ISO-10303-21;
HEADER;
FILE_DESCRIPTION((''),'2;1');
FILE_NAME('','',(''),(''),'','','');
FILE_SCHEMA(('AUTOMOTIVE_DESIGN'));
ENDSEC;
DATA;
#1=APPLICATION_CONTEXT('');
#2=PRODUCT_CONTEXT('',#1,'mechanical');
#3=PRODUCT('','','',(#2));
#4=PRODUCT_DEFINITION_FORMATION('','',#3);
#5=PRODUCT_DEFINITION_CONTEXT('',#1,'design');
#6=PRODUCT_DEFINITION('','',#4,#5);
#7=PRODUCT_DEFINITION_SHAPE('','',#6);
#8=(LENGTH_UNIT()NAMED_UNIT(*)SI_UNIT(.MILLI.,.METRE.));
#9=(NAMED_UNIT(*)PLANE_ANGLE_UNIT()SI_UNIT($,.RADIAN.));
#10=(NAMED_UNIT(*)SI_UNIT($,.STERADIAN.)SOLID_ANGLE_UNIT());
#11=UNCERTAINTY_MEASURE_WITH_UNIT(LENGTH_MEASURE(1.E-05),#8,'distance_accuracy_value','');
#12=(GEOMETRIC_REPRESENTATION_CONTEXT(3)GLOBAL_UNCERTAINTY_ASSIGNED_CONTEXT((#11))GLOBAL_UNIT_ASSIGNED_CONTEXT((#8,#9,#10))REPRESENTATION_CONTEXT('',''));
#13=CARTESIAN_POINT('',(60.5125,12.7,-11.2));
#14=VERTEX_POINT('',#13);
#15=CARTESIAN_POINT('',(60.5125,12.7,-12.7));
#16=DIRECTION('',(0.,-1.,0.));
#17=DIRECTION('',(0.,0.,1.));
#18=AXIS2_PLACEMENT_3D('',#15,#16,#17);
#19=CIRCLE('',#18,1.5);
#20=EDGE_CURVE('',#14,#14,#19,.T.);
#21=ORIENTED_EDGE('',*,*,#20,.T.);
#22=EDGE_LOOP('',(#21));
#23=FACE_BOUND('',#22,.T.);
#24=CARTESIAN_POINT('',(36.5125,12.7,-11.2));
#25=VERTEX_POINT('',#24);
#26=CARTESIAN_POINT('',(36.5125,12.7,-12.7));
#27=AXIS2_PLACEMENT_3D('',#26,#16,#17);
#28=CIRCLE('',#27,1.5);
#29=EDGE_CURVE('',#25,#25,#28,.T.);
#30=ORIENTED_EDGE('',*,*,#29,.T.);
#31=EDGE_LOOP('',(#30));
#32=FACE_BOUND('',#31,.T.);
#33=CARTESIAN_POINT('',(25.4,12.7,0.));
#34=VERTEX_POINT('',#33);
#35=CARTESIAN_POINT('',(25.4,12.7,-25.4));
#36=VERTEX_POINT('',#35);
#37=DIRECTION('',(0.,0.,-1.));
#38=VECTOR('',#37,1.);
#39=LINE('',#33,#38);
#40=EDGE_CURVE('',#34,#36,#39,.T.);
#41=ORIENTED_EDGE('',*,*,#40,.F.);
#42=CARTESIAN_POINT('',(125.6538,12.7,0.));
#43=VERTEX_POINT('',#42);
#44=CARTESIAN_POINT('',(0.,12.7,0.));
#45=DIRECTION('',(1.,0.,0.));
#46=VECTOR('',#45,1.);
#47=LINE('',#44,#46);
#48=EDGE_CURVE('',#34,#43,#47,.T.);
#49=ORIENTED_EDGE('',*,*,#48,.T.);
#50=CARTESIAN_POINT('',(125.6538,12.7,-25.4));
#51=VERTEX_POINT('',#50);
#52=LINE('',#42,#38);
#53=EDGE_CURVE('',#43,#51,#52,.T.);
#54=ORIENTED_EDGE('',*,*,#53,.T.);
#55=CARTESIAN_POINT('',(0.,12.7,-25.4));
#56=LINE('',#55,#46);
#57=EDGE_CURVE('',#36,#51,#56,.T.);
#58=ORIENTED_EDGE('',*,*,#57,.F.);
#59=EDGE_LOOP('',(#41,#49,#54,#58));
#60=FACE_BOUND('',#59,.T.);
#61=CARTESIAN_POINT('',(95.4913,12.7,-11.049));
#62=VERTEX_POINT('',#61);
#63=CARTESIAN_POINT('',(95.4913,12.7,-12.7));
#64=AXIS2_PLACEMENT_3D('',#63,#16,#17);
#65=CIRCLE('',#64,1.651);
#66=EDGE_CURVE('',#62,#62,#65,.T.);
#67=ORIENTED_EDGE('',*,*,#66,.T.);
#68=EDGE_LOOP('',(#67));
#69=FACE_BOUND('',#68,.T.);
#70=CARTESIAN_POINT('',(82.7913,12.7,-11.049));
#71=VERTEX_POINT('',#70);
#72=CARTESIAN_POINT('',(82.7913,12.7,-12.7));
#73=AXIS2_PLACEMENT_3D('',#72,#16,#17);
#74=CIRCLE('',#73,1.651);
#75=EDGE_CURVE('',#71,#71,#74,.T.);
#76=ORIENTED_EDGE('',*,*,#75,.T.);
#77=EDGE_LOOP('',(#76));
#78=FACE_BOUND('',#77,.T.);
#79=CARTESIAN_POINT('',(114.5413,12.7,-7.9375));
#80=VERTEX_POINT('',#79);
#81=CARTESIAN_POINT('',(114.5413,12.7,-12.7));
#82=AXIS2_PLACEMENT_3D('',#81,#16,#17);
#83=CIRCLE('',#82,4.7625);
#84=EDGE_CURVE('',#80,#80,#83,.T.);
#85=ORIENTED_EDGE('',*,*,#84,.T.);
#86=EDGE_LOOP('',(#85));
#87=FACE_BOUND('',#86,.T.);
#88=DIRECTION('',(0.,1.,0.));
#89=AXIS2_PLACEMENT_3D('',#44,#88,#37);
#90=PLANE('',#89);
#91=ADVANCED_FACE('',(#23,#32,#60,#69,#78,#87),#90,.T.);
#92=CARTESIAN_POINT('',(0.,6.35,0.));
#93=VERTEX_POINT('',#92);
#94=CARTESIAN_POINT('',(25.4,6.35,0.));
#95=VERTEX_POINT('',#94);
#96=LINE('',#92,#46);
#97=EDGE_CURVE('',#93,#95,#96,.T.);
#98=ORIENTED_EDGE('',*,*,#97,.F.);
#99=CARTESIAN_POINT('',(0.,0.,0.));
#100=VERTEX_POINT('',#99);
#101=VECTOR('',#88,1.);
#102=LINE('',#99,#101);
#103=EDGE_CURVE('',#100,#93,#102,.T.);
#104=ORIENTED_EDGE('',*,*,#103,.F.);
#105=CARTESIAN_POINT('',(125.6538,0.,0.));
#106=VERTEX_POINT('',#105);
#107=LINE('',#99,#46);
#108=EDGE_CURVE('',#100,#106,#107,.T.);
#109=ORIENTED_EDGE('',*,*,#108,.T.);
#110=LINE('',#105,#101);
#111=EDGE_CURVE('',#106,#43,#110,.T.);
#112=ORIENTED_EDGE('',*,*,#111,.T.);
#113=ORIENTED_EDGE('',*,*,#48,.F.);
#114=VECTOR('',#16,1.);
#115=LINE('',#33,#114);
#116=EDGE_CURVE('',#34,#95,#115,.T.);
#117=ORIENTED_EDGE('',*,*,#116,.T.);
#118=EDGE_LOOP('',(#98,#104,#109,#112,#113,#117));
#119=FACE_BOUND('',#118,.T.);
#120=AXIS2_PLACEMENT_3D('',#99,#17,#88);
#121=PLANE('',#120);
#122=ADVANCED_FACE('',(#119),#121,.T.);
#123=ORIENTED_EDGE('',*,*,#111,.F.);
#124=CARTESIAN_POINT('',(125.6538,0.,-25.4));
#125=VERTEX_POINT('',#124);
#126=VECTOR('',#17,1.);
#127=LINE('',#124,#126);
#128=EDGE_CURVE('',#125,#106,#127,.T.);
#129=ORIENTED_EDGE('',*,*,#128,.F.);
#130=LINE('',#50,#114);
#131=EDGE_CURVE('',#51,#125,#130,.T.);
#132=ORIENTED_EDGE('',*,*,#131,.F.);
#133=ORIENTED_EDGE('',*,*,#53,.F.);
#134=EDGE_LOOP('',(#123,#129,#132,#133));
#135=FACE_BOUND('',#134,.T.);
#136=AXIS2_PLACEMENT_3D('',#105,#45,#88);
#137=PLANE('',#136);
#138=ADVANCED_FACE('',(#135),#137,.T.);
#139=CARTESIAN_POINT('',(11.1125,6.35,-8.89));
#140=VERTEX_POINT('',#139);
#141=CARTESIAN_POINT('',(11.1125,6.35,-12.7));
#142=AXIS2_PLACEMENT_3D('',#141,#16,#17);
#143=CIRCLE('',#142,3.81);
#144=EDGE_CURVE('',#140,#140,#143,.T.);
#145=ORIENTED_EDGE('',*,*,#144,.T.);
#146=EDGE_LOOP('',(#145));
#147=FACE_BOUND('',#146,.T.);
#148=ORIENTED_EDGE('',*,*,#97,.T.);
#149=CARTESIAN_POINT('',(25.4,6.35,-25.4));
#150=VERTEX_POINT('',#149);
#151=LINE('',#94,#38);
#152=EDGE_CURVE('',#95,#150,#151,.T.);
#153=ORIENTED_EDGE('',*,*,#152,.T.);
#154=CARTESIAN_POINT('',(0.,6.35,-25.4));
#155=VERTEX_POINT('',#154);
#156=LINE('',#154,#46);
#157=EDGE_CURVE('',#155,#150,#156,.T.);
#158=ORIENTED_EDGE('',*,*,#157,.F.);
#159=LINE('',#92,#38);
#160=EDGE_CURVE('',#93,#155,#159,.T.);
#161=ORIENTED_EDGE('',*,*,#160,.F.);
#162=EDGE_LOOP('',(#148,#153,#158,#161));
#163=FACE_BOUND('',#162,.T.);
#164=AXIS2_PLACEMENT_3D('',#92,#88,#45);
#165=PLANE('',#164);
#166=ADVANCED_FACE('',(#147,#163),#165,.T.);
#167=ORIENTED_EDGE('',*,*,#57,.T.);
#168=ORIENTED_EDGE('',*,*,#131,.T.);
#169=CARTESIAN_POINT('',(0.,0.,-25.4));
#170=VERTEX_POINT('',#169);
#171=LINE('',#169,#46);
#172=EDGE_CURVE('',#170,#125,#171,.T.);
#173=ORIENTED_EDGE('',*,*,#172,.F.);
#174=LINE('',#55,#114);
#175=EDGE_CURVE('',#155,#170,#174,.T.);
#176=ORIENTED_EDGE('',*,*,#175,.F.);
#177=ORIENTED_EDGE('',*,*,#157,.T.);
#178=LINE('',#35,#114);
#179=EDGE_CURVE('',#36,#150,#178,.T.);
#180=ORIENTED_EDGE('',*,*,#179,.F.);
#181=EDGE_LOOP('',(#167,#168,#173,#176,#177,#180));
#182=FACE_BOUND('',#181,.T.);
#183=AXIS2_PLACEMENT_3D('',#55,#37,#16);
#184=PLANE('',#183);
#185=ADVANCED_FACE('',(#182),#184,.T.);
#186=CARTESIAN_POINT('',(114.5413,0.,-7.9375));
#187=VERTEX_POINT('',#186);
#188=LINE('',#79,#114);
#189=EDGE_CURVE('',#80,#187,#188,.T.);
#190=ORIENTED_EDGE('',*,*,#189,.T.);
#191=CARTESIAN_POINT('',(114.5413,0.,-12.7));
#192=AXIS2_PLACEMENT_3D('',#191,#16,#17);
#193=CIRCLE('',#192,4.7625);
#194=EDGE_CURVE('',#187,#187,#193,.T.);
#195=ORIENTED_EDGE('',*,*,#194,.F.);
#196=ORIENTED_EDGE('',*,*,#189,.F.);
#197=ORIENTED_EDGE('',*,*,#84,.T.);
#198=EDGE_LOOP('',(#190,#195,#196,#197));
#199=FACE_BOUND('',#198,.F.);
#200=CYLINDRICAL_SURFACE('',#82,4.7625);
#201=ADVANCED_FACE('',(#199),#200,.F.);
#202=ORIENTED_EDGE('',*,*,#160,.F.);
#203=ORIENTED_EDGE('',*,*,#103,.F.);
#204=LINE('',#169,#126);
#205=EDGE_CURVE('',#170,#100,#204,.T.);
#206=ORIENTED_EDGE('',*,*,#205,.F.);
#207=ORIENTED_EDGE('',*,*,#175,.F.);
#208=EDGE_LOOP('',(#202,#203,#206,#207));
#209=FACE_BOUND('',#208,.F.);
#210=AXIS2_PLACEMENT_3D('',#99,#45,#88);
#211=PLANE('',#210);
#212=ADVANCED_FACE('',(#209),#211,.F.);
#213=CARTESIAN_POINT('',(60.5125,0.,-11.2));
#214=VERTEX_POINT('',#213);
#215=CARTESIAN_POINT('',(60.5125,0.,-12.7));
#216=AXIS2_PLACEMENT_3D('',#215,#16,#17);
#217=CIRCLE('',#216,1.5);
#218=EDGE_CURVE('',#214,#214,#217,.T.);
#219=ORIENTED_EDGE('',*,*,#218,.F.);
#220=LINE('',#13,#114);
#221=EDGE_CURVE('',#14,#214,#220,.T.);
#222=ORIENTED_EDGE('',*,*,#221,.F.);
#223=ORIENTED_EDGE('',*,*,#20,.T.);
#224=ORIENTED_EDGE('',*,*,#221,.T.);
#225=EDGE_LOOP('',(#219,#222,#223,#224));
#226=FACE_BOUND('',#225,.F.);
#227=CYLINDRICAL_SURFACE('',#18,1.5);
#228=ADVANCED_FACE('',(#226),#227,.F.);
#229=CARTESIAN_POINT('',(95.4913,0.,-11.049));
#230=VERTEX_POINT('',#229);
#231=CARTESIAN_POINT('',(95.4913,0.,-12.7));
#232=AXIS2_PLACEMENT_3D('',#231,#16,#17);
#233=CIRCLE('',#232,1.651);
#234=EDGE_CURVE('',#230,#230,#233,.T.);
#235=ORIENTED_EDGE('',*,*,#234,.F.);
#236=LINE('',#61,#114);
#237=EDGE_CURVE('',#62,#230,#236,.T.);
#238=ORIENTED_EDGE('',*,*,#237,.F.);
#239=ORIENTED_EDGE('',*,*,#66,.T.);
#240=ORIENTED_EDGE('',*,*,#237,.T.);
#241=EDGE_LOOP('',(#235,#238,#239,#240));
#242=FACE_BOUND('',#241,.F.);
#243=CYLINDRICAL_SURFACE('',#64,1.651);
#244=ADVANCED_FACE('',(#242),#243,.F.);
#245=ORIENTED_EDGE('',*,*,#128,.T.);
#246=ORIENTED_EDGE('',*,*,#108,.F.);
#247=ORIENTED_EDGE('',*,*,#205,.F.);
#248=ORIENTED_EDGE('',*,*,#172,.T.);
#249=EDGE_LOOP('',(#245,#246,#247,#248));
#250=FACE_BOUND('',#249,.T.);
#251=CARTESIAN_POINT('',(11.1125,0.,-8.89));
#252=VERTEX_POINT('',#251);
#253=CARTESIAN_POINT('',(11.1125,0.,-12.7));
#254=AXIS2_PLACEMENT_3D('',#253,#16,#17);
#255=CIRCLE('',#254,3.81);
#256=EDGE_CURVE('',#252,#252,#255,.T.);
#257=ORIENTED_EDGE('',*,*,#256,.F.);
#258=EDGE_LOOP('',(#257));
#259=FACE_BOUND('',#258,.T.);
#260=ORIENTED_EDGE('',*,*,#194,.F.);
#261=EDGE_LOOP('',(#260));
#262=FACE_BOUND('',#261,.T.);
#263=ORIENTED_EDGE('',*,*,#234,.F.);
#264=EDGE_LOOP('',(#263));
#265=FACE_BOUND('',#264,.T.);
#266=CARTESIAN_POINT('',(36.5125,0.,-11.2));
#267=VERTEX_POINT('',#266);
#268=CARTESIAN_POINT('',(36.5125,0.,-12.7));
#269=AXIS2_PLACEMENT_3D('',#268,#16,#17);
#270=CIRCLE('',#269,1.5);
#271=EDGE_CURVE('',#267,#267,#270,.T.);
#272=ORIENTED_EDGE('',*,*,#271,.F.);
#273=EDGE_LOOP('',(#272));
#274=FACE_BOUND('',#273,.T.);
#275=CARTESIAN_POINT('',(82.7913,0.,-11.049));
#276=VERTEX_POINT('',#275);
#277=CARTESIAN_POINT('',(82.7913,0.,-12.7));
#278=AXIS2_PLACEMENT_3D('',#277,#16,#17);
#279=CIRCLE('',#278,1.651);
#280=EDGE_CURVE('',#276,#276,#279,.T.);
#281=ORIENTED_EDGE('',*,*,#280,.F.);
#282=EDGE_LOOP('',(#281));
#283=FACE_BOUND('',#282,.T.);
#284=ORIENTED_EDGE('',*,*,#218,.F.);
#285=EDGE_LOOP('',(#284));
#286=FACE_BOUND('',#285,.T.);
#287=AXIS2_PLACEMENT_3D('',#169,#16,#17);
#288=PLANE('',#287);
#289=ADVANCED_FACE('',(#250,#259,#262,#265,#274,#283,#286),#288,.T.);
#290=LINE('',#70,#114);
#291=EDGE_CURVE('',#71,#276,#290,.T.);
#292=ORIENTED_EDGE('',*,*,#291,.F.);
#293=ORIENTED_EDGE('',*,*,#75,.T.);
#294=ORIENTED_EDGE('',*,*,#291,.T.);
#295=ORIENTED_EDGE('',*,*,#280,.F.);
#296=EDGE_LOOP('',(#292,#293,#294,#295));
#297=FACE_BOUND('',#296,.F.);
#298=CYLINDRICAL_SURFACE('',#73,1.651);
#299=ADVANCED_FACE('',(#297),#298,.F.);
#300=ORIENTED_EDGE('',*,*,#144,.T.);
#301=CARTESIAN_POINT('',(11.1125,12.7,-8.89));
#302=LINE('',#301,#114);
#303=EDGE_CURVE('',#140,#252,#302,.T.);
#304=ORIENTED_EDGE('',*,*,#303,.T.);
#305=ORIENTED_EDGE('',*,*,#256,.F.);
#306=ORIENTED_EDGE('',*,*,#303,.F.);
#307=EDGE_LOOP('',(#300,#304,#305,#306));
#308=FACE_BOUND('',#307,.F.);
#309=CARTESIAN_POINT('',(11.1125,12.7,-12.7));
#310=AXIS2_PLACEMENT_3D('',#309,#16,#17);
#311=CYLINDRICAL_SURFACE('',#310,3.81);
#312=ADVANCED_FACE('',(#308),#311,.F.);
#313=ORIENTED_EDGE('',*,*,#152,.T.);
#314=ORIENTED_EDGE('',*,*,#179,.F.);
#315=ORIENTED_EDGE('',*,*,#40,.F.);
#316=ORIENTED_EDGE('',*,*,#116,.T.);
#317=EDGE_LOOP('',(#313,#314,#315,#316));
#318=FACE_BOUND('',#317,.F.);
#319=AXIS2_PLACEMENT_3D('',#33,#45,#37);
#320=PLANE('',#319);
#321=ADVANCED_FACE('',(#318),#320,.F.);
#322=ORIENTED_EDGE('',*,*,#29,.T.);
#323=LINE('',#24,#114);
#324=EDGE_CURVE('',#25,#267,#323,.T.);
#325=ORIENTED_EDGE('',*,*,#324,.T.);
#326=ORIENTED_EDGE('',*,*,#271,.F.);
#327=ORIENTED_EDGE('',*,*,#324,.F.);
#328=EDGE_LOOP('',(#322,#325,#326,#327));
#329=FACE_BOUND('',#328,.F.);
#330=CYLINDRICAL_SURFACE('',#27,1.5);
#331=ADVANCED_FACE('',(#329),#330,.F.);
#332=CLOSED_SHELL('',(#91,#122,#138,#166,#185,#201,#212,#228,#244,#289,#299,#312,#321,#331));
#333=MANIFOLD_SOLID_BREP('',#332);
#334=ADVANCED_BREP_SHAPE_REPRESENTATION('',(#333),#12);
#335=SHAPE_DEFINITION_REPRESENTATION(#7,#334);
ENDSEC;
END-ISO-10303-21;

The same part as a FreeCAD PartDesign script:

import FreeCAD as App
import Part
import Sketcher

V = App.Vector
Q = App.Units.Quantity

doc = App.newDocument("Part")
body = doc.addObject("PartDesign::Body", "Body")

# Sketch on YZ plane
sketch1 = doc.addObject("Sketcher::SketchObject", "Sketch")
body.addObject(sketch1)
sketch1.AttachmentSupport = (doc.YZ_Plane, [""])
sketch1.MapMode = "FlatFace"
sketch1.addGeometry(Part.LineSegment(V(12.7, 0, 0), V(0, 0, 0)), False)
sketch1.addGeometry(Part.LineSegment(V(0, 0, 0), V(0, -25.4, 0)), False)
sketch1.addGeometry(Part.LineSegment(V(0, -25.4, 0), V(12.7, -25.4, 0)), False)
sketch1.addGeometry(Part.LineSegment(V(12.7, -25.4, 0), V(12.7, 0, 0)), False)
sketch1.addConstraint(Sketcher.Constraint("Coincident", 0, 2, 1, 1))
sketch1.addConstraint(Sketcher.Constraint("Coincident", 1, 2, 2, 1))
sketch1.addConstraint(Sketcher.Constraint("Coincident", 2, 2, 3, 1))
sketch1.addConstraint(Sketcher.Constraint("Coincident", 3, 2, 0, 1))
sketch1.addConstraint(Sketcher.Constraint("Horizontal", 0))
sketch1.addConstraint(Sketcher.Constraint("Vertical", 1))
sketch1.addConstraint(Sketcher.Constraint("Horizontal", 2))
sketch1.addConstraint(Sketcher.Constraint("Vertical", 3))
sketch1.addConstraint(Sketcher.Constraint("Coincident", 0, 2, -1, 1))
sketch1.addConstraint(Sketcher.Constraint("DistanceY", 1, 2, 1, 1, Q("1 in")))
sketch1.addConstraint(Sketcher.Constraint("DistanceX", 0, 2, 0, 1, Q("0.5 in")))
pad1 = doc.addObject("PartDesign::Pad", "Pad")
body.addObject(pad1)
pad1.Profile = sketch1
pad1.Length = Q("4.947 in")

# Sketch on XZ plane
sketch2 = doc.addObject("Sketcher::SketchObject", "Sketch001")
body.addObject(sketch2)
sketch2.AttachmentSupport = (doc.XZ_Plane, [""])
sketch2.MapMode = "FlatFace"
sketch2.AttachmentOffset = App.Placement(V(0, 0, -0.5 * 25.4), App.Rotation())
sketch2.addGeometry(Part.Circle(V(36.5125, -12.7, 0), V(0, 0, 1), 1.5), False)
sketch2.addGeometry(Part.Circle(V(60.5125, -12.7, 0), V(0, 0, 1), 1.5), False)
sketch2.addConstraint(Sketcher.Constraint("Equal", 0, 1))
sketch2.addConstraint(Sketcher.Constraint("Horizontal", 0, 3, 1, 3))
sketch2.addConstraint(Sketcher.Constraint("Diameter", 0, Q("0.1181 in")))
sketch2.addConstraint(Sketcher.Constraint("DistanceY", 0, 3, -1, 1, Q("0.5 in")))
sketch2.addConstraint(Sketcher.Constraint("DistanceX", -1, 1, 0, 3, Q("1.4375 in")))
sketch2.addConstraint(Sketcher.Constraint("DistanceX", -1, 1, 1, 3, 60.5125))
doc.recompute()
hole = doc.addObject("PartDesign::Hole", "Hole")
body.addObject(hole)
hole.Profile = sketch2
hole.ThreadType = "None"
hole.Diameter = Q("0.1181102 in")
hole.DepthType = "ThroughAll"
hole.Reversed = True

# Sketch on XZ plane
sketch3 = doc.addObject("Sketcher::SketchObject", "Sketch002")
body.addObject(sketch3)
sketch3.AttachmentSupport = (doc.XZ_Plane, [""])
sketch3.MapMode = "FlatFace"
sketch3.AttachmentOffset = App.Placement(V(0, 0, -0.5 * 25.4), App.Rotation())
sketch3.addGeometry(Part.Circle(V(95.4913, -12.7, 0), V(0, 0, 1), 1.651), False)
sketch3.addConstraint(Sketcher.Constraint("Diameter", 0, Q("0.13 in")))
sketch3.addConstraint(Sketcher.Constraint("DistanceY", 0, 3, -1, 1, Q("0.5 in")))
sketch3.addConstraint(Sketcher.Constraint("DistanceX", -1, 1, 0, 3, Q("3.7595 in")))
doc.recompute()
hole2 = doc.addObject("PartDesign::Hole", "Hole001")
body.addObject(hole2)
hole2.Profile = sketch3
hole2.ThreadType = "None"
hole2.Diameter = Q("0.13 in")
hole2.DepthType = "ThroughAll"
hole2.Reversed = True

# Sketch on XZ plane
sketch4 = doc.addObject("Sketcher::SketchObject", "Sketch003")
body.addObject(sketch4)
sketch4.AttachmentSupport = (doc.XZ_Plane, [""])
sketch4.MapMode = "FlatFace"
sketch4.AttachmentOffset = App.Placement(V(0, 0, -0.5 * 25.4), App.Rotation())
sketch4.addGeometry(Part.Circle(V(82.7913, -12.7, 0), V(0, 0, 1), 1.651), False)
sketch4.addConstraint(Sketcher.Constraint("Diameter", 0, Q("0.13 in")))
sketch4.addConstraint(Sketcher.Constraint("DistanceY", 0, 3, -1, 1, Q("0.5 in")))
sketch4.addConstraint(Sketcher.Constraint("DistanceX", -1, 1, 0, 3, Q("3.2595 in")))
doc.recompute()
hole3 = doc.addObject("PartDesign::Hole", "Hole002")
body.addObject(hole3)
hole3.Profile = sketch4
hole3.ThreadType = "None"
hole3.Diameter = Q("0.13 in")
hole3.DepthType = "ThroughAll"
hole3.Reversed = True

# Sketch on XZ plane
sketch5 = doc.addObject("Sketcher::SketchObject", "Sketch004")
body.addObject(sketch5)
sketch5.AttachmentSupport = (doc.XZ_Plane, [""])
sketch5.MapMode = "FlatFace"
sketch5.AttachmentOffset = App.Placement(V(0, 0, -0.5 * 25.4), App.Rotation())
sketch5.addGeometry(Part.Circle(V(11.1125, -12.7, 0), V(0, 0, 1), 3.81), False)
sketch5.addConstraint(Sketcher.Constraint("Diameter", 0, Q("0.3 in")))
sketch5.addConstraint(Sketcher.Constraint("DistanceY", 0, 3, -1, 1, Q("0.5 in")))
sketch5.addConstraint(Sketcher.Constraint("DistanceX", -1, 1, 0, 3, Q("0.4375 in")))
doc.recompute()
hole4 = doc.addObject("PartDesign::Hole", "Hole003")
body.addObject(hole4)
hole4.Profile = sketch5
hole4.ThreadType = "None"
hole4.Diameter = Q("0.3 in")
hole4.DepthType = "ThroughAll"
hole4.Reversed = True

# Sketch on XZ plane
sketch6 = doc.addObject("Sketcher::SketchObject", "Sketch005")
body.addObject(sketch6)
sketch6.AttachmentSupport = (doc.XZ_Plane, [""])
sketch6.MapMode = "FlatFace"
sketch6.AttachmentOffset = App.Placement(V(0, 0, -0.5 * 25.4), App.Rotation())
sketch6.addGeometry(Part.Circle(V(114.5413, -12.7, 0), V(0, 0, 1), 4.7625), False)
sketch6.addConstraint(Sketcher.Constraint("Diameter", 0, Q("0.375 in")))
sketch6.addConstraint(Sketcher.Constraint("DistanceY", 0, 3, -1, 1, Q("0.5 in")))
sketch6.addConstraint(Sketcher.Constraint("DistanceX", -1, 1, 0, 3, Q("4.5095 in")))
doc.recompute()
hole5 = doc.addObject("PartDesign::Hole", "Hole004")
body.addObject(hole5)
hole5.Profile = sketch6
hole5.ThreadType = "None"
hole5.Diameter = Q("0.375 in")
hole5.DepthType = "ThroughAll"
hole5.Reversed = True

# Sketch on XZ plane
sketch7 = doc.addObject("Sketcher::SketchObject", "Sketch006")
body.addObject(sketch7)
sketch7.AttachmentSupport = (doc.XZ_Plane, [""])
sketch7.MapMode = "FlatFace"
sketch7.AttachmentOffset = App.Placement(V(0, 0, -0.5 * 25.4), App.Rotation())
sketch7.addGeometry(Part.LineSegment(V(0, -25.4, 0), V(0, 0, 0)), False)
sketch7.addGeometry(Part.LineSegment(V(0, 0, 0), V(25.4, 0, 0)), False)
sketch7.addGeometry(Part.LineSegment(V(25.4, 0, 0), V(25.4, -25.4, 0)), False)
sketch7.addGeometry(Part.LineSegment(V(25.4, -25.4, 0), V(0, -25.4, 0)), False)
sketch7.addGeometry(Part.Circle(V(11.1125, -12.7, 0), V(0, 0, 1), 3.81), False)
sketch7.addConstraint(Sketcher.Constraint("Coincident", 0, 2, 1, 1))
sketch7.addConstraint(Sketcher.Constraint("Coincident", 1, 2, 2, 1))
sketch7.addConstraint(Sketcher.Constraint("Coincident", 2, 2, 3, 1))
sketch7.addConstraint(Sketcher.Constraint("Coincident", 3, 2, 0, 1))
sketch7.addConstraint(Sketcher.Constraint("Vertical", 0))
sketch7.addConstraint(Sketcher.Constraint("Horizontal", 1))
sketch7.addConstraint(Sketcher.Constraint("Vertical", 2))
sketch7.addConstraint(Sketcher.Constraint("Horizontal", 3))
sketch7.addConstraint(Sketcher.Constraint("Coincident", 0, 2, -1, 1))
sketch7.addConstraint(Sketcher.Constraint("Equal", 3, 0))
sketch7.addConstraint(Sketcher.Constraint("DistanceX", 1, 1, 1, 2, Q("1 in")))
sketch7.addConstraint(Sketcher.Constraint("Diameter", 4, Q("0.3 in")))
sketch7.addConstraint(Sketcher.Constraint("DistanceY", 4, 3, -1, 1, Q("0.5 in")))
sketch7.addConstraint(Sketcher.Constraint("DistanceX", -1, 1, 4, 3, Q("0.4375 in")))
pocket1 = doc.addObject("PartDesign::Pocket", "Pocket")
body.addObject(pocket1)
pocket1.Profile = sketch7
pocket1.Length = Q("0.25 in")
pocket1.Reversed = True

doc.recompute()
